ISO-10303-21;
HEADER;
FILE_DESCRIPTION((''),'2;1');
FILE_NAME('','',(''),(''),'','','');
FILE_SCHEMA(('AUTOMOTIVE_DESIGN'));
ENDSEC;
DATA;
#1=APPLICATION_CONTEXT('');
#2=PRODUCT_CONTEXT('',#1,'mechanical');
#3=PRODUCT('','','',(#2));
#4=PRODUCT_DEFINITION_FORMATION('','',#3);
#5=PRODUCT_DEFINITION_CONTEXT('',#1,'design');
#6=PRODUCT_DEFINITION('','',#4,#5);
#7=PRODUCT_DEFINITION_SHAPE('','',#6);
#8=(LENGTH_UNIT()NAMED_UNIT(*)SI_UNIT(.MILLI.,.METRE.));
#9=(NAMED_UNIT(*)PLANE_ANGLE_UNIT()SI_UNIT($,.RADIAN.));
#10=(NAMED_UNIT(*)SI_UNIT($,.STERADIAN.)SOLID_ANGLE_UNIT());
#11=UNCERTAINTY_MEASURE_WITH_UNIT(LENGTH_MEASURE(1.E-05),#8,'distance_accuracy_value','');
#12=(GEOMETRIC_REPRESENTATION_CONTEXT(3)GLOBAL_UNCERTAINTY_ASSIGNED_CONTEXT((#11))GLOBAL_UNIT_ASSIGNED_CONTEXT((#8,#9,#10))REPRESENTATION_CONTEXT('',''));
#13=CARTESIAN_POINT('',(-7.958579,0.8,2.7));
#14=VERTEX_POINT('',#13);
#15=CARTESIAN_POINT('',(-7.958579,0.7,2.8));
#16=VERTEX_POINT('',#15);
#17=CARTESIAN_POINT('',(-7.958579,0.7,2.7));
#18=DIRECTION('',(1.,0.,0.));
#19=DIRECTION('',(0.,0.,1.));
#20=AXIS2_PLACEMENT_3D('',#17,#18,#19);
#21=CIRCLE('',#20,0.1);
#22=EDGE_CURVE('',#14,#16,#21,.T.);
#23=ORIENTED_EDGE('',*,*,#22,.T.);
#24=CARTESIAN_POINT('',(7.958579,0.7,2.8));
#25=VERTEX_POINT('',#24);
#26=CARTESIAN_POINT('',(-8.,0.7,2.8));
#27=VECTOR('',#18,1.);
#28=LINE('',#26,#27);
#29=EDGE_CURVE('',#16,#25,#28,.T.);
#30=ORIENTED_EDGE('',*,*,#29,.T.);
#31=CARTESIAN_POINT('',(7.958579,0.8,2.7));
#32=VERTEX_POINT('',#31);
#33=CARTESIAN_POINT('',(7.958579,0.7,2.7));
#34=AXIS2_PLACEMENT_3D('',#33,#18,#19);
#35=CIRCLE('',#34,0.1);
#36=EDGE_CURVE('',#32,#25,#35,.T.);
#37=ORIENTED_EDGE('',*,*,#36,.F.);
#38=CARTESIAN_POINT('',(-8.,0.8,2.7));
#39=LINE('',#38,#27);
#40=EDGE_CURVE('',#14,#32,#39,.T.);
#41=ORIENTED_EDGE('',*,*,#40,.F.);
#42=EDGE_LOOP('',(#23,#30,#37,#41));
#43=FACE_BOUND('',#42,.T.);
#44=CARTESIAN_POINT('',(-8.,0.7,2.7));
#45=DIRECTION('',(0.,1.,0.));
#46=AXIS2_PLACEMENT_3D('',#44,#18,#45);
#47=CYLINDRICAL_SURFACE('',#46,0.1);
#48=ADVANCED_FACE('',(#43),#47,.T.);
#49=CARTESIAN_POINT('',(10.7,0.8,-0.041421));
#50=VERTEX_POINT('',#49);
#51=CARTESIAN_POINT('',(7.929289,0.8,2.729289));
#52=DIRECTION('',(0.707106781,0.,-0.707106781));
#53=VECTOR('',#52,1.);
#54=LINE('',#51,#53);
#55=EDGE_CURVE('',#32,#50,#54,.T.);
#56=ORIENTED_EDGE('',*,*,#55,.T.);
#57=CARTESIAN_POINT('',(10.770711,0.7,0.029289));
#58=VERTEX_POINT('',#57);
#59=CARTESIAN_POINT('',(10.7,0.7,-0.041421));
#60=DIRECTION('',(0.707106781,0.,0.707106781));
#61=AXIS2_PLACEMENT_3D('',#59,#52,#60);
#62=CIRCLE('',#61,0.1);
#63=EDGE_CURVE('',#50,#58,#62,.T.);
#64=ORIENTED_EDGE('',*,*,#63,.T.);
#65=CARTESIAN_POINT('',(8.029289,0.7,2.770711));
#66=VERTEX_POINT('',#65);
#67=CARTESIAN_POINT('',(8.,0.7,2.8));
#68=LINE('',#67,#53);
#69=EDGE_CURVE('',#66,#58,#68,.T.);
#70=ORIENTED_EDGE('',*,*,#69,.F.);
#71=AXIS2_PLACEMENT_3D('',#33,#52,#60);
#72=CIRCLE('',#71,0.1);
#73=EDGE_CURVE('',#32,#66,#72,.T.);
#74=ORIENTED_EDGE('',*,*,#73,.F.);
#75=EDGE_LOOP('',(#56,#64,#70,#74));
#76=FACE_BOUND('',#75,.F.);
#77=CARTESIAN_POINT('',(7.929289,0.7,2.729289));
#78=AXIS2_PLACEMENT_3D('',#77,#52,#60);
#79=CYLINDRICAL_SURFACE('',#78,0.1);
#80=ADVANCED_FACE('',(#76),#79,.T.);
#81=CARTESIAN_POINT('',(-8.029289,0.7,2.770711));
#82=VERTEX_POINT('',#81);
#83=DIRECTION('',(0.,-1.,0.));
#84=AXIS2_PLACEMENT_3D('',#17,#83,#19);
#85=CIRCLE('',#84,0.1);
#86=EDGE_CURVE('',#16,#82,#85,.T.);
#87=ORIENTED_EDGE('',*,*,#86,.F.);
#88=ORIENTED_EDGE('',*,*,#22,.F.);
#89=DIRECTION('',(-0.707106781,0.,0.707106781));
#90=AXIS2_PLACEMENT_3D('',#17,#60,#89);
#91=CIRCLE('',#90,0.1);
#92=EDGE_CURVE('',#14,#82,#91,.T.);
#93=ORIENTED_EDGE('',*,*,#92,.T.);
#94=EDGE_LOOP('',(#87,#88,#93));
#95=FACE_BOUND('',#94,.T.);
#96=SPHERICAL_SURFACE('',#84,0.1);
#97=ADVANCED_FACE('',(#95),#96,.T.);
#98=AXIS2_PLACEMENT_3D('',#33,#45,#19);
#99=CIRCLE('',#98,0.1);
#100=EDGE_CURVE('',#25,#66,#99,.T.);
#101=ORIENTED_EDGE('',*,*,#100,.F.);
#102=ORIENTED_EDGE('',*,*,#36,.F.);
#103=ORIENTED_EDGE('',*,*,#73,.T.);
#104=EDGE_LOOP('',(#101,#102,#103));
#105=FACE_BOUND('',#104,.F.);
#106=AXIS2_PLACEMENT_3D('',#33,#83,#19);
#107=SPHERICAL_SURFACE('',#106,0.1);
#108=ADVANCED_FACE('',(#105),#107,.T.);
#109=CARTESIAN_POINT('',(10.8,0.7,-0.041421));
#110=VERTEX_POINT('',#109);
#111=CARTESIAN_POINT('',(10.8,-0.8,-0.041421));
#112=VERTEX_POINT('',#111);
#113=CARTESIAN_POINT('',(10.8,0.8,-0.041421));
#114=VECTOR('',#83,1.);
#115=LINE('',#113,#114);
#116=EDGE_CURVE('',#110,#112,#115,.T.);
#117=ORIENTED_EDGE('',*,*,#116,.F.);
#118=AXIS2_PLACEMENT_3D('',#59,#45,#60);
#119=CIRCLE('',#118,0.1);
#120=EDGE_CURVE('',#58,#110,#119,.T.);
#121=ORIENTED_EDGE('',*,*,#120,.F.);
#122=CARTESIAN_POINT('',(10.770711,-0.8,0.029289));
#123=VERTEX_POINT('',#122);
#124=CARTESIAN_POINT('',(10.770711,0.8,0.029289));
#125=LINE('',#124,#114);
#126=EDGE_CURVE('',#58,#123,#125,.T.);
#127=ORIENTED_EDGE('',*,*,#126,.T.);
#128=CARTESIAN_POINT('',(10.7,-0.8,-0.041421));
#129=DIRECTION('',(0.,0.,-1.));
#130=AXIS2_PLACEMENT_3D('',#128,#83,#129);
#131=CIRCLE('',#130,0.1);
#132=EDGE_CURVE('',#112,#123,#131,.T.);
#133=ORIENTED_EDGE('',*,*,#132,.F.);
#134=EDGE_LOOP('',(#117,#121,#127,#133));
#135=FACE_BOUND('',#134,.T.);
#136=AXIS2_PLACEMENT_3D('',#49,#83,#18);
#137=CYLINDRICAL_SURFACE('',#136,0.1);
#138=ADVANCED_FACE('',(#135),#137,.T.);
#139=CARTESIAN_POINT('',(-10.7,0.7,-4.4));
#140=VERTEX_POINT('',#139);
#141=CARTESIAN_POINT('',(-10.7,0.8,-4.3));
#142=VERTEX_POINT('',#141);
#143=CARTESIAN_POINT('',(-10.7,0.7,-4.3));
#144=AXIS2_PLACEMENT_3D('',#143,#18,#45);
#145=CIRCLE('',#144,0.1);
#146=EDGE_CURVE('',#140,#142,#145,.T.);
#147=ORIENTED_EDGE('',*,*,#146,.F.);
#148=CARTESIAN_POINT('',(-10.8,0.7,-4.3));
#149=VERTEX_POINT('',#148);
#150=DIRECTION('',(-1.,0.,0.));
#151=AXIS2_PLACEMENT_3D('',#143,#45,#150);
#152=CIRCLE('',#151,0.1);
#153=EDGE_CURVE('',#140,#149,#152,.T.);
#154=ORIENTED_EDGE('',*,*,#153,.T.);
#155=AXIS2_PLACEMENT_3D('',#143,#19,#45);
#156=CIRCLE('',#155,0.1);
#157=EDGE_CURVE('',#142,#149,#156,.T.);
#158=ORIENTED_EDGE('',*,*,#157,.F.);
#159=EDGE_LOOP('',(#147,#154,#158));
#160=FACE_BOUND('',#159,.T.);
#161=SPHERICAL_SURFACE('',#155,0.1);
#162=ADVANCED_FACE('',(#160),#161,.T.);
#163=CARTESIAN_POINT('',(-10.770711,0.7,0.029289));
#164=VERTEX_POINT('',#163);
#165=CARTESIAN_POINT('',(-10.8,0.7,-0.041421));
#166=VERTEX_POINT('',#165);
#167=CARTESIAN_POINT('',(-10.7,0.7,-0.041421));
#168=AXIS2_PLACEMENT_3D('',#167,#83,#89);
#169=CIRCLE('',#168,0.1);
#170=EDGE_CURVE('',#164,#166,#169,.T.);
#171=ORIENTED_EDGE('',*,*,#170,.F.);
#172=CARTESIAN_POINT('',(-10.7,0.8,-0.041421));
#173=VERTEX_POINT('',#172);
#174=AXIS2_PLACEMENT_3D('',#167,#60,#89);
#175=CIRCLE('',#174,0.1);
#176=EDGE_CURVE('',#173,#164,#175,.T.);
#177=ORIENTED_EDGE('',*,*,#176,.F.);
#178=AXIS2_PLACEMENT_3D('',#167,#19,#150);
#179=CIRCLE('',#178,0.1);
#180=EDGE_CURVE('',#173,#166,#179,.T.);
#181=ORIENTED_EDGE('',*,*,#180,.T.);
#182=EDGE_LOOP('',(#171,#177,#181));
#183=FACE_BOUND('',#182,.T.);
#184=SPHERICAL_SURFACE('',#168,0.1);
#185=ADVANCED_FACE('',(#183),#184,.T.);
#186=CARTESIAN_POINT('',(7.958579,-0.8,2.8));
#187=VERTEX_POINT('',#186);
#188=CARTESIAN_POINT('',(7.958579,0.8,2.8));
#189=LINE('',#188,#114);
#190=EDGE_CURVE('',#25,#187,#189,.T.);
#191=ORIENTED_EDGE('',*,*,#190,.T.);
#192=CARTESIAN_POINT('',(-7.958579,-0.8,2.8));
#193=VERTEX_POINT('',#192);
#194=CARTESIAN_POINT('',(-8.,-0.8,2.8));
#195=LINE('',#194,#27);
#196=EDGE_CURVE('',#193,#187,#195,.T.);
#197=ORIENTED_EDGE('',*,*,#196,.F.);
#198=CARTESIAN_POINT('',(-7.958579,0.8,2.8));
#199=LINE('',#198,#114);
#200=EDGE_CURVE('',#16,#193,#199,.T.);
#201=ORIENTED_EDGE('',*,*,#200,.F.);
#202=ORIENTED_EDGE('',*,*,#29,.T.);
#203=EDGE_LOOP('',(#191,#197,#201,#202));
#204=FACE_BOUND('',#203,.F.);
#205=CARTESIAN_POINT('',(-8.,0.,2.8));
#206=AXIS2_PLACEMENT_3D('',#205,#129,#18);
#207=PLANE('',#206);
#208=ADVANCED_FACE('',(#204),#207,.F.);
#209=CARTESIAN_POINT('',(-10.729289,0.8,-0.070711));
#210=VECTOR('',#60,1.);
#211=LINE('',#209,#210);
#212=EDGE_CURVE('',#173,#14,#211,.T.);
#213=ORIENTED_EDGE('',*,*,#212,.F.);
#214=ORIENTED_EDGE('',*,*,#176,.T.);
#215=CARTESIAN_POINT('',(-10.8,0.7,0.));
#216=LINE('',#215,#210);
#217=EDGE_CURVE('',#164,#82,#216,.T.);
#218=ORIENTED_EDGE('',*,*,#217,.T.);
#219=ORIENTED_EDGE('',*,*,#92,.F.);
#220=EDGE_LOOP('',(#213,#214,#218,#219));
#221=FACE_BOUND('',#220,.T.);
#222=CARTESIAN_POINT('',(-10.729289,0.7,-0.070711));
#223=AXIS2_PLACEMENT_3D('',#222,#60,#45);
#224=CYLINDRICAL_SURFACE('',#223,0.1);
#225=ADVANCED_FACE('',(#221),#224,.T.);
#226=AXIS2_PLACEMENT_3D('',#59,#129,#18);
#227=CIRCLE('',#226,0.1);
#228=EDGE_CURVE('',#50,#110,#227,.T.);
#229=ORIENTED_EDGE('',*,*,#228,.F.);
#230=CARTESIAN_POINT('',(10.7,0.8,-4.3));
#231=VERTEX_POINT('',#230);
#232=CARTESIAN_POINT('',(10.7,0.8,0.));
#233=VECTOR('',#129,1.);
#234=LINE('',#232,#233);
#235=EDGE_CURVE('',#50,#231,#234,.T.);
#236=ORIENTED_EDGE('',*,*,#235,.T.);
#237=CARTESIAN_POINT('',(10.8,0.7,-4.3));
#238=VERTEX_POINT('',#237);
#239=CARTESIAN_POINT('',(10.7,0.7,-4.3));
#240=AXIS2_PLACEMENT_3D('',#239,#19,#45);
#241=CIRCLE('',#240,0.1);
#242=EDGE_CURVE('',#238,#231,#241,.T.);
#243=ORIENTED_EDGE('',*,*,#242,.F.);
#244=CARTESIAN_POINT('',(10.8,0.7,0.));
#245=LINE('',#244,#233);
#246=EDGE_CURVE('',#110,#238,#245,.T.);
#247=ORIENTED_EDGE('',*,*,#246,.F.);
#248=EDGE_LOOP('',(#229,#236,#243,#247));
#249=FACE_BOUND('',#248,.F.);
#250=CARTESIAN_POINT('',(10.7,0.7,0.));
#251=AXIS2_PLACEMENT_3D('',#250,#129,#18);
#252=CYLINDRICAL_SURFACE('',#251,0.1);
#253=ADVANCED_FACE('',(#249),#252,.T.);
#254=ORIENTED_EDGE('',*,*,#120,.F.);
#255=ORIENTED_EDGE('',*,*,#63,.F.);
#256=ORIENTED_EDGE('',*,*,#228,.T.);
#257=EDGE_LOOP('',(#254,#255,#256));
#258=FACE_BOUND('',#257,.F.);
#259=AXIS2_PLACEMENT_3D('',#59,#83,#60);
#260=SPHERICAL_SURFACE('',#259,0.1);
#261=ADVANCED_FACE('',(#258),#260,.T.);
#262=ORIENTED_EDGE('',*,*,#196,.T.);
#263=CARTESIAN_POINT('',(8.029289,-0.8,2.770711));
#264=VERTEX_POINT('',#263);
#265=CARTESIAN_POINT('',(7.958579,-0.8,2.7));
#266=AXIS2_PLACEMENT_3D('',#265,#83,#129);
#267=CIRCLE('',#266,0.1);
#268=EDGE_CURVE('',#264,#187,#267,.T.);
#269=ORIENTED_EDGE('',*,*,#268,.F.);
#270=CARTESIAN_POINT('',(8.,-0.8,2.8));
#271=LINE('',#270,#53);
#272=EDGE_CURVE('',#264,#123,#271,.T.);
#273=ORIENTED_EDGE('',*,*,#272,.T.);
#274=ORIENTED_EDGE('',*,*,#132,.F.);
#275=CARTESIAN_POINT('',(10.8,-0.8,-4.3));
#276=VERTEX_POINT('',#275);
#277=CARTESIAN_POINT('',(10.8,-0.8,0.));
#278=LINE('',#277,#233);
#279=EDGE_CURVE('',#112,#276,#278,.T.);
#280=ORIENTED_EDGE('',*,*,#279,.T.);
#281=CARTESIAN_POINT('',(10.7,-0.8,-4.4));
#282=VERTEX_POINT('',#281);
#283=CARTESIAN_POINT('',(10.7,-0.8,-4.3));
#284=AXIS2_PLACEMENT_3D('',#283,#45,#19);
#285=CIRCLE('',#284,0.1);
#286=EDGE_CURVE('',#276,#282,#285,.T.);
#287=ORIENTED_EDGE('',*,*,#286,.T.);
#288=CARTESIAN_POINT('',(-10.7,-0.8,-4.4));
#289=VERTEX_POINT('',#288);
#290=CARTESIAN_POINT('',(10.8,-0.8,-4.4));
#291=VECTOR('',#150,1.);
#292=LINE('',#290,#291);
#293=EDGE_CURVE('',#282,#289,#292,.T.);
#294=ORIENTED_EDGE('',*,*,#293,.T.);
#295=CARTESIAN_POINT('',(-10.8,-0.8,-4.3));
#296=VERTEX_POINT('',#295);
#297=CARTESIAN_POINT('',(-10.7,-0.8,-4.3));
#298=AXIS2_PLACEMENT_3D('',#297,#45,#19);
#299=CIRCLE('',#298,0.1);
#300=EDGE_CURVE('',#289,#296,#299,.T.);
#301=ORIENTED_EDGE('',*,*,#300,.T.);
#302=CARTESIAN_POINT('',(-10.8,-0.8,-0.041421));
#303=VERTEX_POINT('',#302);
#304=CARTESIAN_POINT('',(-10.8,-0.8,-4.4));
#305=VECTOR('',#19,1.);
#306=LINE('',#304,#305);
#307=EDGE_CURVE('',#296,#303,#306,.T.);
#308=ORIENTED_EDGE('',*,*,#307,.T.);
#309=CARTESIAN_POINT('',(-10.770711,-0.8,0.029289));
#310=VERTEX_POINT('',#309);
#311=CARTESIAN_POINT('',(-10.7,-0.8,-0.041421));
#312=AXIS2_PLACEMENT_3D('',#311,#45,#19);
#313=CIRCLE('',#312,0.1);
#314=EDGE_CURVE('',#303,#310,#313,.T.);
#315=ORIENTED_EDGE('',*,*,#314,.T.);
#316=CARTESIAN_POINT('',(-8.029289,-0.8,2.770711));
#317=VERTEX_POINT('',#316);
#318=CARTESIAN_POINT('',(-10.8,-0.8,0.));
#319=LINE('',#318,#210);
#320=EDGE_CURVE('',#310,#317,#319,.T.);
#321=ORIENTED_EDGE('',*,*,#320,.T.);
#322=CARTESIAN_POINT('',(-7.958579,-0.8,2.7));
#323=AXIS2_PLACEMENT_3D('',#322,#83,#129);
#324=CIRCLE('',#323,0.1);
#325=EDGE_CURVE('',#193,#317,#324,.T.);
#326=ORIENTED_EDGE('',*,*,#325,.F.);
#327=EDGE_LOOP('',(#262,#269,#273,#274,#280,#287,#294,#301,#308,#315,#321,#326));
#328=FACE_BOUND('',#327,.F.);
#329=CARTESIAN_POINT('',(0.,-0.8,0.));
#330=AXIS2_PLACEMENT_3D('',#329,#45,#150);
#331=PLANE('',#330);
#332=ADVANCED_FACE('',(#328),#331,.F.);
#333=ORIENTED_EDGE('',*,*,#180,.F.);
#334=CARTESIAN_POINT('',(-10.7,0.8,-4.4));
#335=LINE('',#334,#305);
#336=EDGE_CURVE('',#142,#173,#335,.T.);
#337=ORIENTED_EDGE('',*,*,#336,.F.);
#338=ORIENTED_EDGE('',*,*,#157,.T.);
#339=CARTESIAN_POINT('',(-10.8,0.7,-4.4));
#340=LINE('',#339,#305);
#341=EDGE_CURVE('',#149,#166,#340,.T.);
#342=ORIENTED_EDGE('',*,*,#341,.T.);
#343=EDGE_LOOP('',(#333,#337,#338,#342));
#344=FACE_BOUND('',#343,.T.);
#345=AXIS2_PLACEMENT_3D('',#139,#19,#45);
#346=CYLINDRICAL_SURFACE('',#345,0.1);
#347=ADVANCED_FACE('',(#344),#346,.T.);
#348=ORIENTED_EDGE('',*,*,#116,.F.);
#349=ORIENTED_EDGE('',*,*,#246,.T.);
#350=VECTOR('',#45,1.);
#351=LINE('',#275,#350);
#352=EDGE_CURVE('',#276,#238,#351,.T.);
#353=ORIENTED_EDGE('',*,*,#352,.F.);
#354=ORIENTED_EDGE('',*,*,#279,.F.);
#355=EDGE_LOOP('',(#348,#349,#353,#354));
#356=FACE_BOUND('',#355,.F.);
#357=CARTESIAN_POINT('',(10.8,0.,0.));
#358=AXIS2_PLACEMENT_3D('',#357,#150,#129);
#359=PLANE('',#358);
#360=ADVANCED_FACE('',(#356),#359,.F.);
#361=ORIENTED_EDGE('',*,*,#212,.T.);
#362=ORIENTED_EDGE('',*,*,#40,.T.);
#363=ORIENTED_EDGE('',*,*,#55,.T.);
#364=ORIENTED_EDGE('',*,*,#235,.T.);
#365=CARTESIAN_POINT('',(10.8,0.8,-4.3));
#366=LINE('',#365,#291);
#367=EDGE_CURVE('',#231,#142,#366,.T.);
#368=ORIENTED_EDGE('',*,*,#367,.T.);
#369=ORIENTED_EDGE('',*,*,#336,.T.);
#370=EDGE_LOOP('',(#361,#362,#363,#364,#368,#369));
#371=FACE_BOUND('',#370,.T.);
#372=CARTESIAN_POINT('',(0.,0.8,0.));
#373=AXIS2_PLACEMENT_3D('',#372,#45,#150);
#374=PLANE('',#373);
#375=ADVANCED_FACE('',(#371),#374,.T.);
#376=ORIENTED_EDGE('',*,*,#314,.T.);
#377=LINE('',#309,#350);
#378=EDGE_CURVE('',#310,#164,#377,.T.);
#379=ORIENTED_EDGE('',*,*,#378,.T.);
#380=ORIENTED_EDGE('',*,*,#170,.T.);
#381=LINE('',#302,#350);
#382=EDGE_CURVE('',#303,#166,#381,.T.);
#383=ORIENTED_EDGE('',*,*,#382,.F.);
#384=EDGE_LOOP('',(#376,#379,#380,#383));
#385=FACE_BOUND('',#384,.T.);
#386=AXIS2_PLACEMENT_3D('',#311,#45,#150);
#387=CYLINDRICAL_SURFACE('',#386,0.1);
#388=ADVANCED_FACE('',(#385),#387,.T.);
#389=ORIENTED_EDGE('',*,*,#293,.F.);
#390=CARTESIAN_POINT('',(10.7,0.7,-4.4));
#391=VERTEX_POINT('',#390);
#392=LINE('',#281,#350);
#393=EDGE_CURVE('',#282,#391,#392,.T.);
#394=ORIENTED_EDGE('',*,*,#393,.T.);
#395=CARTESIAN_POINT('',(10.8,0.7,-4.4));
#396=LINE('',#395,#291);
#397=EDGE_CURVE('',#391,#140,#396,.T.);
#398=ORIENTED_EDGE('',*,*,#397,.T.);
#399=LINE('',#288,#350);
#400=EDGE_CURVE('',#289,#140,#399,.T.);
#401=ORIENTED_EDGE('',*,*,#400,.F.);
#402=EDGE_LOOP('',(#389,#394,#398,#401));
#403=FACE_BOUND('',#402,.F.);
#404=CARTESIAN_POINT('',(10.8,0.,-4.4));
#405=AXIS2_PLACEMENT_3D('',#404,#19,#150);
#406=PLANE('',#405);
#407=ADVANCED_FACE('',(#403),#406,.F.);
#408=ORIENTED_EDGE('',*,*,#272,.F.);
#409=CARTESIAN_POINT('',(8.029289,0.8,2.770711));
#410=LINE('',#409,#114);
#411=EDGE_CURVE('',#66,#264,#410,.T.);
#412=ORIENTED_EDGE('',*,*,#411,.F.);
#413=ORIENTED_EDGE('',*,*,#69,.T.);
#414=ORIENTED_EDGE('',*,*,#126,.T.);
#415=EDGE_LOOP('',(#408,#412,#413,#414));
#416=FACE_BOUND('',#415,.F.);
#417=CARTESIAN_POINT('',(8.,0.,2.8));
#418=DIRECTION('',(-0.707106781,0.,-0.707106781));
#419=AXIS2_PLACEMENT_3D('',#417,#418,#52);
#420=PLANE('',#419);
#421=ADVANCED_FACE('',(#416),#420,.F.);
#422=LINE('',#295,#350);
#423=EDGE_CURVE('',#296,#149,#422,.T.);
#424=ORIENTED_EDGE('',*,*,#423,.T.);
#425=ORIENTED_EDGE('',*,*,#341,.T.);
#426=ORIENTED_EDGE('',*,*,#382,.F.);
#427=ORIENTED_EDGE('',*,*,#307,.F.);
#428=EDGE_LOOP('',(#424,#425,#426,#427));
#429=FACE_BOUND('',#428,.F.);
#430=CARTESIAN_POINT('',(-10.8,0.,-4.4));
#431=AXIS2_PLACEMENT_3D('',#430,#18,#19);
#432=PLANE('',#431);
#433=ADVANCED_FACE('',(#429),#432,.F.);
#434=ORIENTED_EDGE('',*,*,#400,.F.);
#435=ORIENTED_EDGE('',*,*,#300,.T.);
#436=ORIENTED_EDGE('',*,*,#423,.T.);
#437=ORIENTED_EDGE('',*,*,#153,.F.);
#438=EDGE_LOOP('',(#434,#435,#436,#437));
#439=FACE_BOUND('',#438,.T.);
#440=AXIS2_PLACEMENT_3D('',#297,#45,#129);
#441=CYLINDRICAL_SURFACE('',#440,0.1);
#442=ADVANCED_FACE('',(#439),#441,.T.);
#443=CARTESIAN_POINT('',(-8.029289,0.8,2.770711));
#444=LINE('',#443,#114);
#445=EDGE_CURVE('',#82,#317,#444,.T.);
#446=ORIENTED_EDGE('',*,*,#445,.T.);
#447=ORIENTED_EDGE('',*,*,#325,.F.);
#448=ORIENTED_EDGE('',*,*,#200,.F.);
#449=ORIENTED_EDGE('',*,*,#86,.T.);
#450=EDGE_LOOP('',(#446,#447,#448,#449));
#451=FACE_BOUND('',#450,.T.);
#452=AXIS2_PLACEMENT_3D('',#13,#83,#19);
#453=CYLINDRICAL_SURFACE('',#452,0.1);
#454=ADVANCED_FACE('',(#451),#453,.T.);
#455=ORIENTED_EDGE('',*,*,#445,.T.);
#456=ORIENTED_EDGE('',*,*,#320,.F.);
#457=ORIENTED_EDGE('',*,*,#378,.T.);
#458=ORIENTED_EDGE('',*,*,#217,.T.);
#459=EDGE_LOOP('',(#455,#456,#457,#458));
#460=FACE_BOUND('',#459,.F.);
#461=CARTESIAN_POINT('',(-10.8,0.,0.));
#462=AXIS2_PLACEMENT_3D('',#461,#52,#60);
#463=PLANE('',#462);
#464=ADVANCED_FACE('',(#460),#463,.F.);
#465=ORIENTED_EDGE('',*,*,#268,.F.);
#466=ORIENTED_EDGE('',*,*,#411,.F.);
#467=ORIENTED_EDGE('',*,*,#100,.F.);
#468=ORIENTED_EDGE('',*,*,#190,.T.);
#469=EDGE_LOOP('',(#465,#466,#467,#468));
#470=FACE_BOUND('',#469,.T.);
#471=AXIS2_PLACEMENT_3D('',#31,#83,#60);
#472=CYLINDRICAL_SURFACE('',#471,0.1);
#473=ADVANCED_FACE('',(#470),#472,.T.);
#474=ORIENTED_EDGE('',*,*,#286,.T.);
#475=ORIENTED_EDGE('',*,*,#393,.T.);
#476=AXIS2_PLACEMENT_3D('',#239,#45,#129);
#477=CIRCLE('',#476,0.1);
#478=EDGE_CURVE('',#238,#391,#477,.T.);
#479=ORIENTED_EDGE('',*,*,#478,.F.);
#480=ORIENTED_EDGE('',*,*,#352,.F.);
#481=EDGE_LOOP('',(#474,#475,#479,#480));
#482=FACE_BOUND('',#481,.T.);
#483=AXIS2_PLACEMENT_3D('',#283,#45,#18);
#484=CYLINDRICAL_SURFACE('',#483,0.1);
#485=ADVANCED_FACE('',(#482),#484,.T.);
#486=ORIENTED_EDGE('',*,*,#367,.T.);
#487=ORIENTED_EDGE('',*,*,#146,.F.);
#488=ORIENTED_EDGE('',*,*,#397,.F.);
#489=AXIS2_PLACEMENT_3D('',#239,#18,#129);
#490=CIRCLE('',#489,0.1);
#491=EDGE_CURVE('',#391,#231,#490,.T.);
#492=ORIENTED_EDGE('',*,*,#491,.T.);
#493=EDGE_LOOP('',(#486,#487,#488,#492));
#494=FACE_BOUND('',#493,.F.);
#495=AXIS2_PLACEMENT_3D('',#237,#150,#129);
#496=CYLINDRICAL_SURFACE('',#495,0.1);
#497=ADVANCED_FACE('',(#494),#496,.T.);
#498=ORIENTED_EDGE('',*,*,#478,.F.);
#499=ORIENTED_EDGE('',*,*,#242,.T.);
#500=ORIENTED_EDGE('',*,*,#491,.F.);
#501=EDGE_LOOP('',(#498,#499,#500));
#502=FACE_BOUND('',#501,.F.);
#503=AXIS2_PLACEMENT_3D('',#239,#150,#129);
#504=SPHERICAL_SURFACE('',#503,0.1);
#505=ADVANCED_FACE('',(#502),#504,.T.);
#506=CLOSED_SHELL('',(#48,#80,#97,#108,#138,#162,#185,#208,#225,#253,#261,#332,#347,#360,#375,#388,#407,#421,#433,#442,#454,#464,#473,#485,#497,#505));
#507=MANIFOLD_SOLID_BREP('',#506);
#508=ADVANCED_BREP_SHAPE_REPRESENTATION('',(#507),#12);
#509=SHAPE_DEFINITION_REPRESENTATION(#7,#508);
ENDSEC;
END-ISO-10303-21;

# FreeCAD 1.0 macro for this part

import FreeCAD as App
import Part
import Sketcher
from FreeCAD import Vector
Q = App.Units.Quantity


def edges_at(feature, points):
    """Names of the edges that pass closest to the given points."""
    edges = feature.Shape.Edges
    near = lambda p: min(range(len(edges)), key=lambda i: edges[i].distToShape(Part.Vertex(*p))[0])
    return sorted({f"Edge{near(p) + 1}" for p in points})


def add_polygon(sketch, points):
    """Adds a closed chain of lines whose ends are joined by coincident constraints."""
    first, n = sketch.GeometryCount, len(points)
    for a, b in zip(points, points[1:] + points[:1]):
        sketch.addGeometry(Part.LineSegment(App.Vector(*a, 0), App.Vector(*b, 0)), False)
    for i in range(n):
        sketch.addConstraint(Sketcher.Constraint("Coincident", first + i, 2, first + (i + 1) % n, 1))

doc = App.newDocument("Part")
body = doc.addObject("PartDesign::Body", "Body")

sketch1 = body.newObject("Sketcher::SketchObject", "Sketch")
sketch1.AttachmentSupport = (doc.getObject("XZ_Plane"), [""])
sketch1.MapMode = "FlatFace"
add_polygon(sketch1, [(10.8, 0), (10.8, -4.4), (-10.8, -4.4), (-10.8, 0), (-8, 2.8), (8, 2.8)])
sketch1.addConstraint([
    Sketcher.Constraint("Vertical", 0),
    Sketcher.Constraint("Horizontal", 1),
    Sketcher.Constraint("Vertical", 2),
    Sketcher.Constraint("Horizontal", 4),
    Sketcher.Constraint("Symmetric", 2, 2, 5, 2, -1, 1),
    Sketcher.Constraint("PointOnObject", 2, 2, -1),
    Sketcher.Constraint("Perpendicular", 3, 5),
    Sketcher.Constraint("Equal", 3, 5),
    Sketcher.Constraint("DistanceX", 4, 1, 4, 2, Q("16 mm")),
    Sketcher.Constraint("DistanceX", 1, 2, 1, 1, Q("21.6 mm")),
    Sketcher.Constraint("DistanceY", 1, 2, 3, 2, Q("7.2 mm")),
])
pad1 = body.newObject("PartDesign::Pad", "Pad")
pad1.Profile = sketch1
pad1.Length = 1.6
pad1.Midplane = True
doc.recompute()

fillet = body.newObject("PartDesign::Fillet", "Fillet")
fillet.Base = (pad1, edges_at(pad1, [
    (-9.4, 0.8, 1.4),
    (-10.8, 0.8, -2.2),
    (0, 0.8, -4.4),
    (-8, 0, 2.8),
    (-10.8, 0, 0),
    (-10.8, 0, -4.4),
    (10.8, 0, -4.4),
    (10.8, 0.8, -2.2),
    (10.8, 0, 0),
    (9.4, 0.8, 1.4),
    (8, 0, 2.8),
    (0, 0.8, 2.8),
]))
fillet.Radius = 0.1

doc.recompute()
